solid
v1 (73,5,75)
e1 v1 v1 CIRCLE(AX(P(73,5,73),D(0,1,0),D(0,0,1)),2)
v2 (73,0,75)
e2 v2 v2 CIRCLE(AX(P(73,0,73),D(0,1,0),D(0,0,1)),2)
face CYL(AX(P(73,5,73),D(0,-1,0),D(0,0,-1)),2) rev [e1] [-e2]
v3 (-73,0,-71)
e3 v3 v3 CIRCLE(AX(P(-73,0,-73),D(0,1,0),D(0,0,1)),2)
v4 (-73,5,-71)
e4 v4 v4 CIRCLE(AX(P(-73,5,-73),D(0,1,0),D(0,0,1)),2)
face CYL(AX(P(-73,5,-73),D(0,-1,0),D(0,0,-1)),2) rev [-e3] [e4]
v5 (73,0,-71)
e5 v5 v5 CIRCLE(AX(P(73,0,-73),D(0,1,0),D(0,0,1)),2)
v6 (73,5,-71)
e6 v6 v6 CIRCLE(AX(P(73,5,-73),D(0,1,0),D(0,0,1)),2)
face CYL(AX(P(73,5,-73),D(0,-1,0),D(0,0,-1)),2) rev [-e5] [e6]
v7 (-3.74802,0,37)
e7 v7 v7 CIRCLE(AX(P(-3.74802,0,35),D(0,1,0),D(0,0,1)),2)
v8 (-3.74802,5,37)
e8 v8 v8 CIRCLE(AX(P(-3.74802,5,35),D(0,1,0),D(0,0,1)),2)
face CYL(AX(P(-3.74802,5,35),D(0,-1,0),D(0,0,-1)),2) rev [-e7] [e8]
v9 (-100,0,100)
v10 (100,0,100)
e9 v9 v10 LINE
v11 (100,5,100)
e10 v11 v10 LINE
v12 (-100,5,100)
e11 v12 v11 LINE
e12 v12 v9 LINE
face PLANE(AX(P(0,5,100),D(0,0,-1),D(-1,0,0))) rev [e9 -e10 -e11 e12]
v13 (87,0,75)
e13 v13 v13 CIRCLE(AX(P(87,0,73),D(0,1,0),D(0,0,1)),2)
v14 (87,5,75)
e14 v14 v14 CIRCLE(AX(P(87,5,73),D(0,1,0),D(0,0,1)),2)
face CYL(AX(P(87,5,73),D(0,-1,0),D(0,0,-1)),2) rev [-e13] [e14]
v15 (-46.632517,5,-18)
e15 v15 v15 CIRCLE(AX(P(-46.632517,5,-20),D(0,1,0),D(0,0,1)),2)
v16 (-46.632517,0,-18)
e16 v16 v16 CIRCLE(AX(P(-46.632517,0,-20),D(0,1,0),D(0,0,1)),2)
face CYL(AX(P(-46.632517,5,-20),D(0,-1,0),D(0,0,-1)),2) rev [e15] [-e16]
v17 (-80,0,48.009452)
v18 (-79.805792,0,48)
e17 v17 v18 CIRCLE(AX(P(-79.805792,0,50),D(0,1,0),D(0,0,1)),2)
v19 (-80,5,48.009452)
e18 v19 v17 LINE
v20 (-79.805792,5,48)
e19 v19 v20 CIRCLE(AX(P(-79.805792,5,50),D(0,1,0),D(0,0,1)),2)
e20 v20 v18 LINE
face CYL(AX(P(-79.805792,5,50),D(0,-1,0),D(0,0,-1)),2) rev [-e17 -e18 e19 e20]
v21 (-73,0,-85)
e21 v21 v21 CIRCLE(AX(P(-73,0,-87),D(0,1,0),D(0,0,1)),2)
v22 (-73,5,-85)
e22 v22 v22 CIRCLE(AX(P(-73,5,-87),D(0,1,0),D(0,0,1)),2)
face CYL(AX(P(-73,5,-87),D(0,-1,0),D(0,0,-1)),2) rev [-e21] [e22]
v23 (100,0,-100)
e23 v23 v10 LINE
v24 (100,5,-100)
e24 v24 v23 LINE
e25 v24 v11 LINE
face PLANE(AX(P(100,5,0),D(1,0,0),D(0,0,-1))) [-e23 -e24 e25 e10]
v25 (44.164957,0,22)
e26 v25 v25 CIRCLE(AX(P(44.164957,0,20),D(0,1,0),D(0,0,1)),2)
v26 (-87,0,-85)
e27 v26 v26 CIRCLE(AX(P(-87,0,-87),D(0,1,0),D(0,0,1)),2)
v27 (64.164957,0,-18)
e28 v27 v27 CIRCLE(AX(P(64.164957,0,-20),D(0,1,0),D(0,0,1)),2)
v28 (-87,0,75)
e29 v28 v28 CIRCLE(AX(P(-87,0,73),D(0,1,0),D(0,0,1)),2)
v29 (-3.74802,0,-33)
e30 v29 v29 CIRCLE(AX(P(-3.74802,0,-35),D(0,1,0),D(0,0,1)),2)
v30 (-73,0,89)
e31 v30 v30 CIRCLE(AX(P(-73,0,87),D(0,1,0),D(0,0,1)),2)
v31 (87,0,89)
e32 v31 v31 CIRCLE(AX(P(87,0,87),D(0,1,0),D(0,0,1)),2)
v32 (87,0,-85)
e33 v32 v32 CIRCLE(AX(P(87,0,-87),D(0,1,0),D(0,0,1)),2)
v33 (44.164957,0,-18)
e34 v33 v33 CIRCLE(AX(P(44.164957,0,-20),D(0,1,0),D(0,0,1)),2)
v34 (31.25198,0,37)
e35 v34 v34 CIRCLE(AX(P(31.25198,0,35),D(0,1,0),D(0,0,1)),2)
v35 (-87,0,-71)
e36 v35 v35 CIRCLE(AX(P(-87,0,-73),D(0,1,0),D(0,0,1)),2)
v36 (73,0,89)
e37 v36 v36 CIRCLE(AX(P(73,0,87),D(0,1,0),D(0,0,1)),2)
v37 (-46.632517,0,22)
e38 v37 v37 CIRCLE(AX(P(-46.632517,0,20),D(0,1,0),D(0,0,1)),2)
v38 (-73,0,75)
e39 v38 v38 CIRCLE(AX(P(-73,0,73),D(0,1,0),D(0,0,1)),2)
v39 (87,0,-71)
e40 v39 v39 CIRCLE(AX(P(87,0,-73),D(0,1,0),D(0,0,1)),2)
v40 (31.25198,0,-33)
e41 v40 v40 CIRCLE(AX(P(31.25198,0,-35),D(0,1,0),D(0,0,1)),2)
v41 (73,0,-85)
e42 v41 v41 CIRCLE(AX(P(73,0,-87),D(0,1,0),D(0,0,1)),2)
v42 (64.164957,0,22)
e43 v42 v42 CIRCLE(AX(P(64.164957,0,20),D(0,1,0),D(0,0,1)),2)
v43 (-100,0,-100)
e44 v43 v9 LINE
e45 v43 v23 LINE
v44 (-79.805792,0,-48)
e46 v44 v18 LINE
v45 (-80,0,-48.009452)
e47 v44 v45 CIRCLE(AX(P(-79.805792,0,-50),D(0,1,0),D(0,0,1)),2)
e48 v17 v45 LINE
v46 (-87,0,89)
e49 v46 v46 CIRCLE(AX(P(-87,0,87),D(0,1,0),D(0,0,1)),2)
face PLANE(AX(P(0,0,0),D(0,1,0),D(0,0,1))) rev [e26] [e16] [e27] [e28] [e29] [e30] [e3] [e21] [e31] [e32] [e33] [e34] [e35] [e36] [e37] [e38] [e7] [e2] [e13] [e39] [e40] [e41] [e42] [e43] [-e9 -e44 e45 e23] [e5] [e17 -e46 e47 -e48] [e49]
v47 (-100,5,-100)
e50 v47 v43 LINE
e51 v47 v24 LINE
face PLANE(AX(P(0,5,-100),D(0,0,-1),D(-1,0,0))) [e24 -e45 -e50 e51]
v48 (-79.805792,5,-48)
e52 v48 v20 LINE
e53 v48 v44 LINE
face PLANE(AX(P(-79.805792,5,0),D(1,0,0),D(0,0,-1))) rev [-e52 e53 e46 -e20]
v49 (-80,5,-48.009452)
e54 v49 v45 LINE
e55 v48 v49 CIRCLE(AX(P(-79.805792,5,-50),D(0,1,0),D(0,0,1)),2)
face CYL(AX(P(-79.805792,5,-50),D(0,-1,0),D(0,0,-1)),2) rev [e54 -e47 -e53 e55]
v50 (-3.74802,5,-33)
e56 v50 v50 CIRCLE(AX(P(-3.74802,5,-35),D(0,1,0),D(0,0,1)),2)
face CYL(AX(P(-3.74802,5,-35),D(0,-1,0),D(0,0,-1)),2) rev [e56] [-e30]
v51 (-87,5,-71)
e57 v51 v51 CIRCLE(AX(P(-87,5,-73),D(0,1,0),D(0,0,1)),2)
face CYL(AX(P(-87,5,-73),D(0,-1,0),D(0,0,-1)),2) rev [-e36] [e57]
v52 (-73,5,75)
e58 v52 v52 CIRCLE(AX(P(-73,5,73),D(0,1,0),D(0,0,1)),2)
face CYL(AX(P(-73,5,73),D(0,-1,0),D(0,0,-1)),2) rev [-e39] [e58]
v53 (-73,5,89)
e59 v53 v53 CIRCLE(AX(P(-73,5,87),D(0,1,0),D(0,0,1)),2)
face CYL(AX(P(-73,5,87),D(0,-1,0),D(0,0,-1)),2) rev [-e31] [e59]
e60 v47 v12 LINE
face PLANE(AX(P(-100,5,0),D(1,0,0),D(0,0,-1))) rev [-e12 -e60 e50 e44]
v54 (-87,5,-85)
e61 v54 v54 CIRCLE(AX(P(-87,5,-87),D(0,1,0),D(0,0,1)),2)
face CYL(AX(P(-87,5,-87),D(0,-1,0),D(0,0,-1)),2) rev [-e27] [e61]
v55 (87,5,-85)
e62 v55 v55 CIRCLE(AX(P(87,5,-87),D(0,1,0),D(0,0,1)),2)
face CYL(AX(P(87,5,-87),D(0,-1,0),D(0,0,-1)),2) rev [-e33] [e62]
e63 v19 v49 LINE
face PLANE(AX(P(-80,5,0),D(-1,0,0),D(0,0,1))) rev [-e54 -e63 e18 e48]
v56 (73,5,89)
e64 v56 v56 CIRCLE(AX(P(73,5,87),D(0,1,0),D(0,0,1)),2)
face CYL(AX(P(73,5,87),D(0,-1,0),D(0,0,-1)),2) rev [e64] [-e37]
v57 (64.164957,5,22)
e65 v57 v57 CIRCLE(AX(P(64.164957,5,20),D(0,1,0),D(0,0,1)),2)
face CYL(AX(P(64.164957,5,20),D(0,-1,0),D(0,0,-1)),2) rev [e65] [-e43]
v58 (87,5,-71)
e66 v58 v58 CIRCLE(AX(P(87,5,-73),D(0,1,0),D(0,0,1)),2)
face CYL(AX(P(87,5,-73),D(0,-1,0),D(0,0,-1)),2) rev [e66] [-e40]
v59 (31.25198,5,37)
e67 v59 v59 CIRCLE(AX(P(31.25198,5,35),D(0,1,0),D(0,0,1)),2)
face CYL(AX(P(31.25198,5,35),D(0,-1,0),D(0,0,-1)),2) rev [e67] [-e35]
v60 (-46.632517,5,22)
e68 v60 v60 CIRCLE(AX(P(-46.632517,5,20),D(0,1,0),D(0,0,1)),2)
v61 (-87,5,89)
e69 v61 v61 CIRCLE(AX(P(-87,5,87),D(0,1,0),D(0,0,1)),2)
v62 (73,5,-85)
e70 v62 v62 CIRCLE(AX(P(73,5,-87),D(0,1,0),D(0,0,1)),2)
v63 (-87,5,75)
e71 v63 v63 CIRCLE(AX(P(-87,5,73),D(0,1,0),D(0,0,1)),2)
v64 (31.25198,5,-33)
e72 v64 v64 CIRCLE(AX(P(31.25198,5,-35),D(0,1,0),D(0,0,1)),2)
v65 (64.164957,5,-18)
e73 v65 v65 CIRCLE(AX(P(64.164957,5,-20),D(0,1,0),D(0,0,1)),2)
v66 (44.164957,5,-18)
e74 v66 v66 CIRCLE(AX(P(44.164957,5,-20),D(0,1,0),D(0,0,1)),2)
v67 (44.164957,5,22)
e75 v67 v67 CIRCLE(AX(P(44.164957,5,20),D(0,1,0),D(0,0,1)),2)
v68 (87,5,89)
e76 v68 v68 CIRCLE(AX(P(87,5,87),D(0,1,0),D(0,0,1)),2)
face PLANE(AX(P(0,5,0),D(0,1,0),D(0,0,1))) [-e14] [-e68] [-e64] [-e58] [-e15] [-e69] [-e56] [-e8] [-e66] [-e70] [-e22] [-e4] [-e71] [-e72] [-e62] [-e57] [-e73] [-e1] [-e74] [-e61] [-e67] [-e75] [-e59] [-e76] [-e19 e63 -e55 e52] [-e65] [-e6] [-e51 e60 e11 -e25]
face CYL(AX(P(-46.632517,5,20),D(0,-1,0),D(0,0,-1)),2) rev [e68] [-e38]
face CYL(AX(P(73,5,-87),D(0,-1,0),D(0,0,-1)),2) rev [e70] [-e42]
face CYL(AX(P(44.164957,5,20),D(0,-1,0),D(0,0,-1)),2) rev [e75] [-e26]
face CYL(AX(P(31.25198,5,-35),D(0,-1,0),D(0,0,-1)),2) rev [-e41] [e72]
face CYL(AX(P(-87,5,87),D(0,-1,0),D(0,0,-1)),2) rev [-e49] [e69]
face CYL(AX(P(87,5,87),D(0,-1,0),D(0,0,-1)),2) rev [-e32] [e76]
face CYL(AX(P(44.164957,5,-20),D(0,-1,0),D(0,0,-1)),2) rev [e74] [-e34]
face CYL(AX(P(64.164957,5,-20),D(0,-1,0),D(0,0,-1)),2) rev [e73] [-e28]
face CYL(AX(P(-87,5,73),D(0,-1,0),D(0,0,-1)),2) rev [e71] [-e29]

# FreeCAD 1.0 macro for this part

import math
import FreeCAD as App
import Part
import Sketcher
Q = App.Units.Quantity

doc = App.newDocument("Part")
params = doc.addObject("Spreadsheet::Sheet", "Params")
for row, (alias, value) in enumerate([
    ("sketch1_diameter", "4 mm"),
    ("sketch1_width", "200 mm"),
    ("sketch1_height", "96 mm"),
    ("pad1_length", "5 mm"),
], start=1):
    params.set(f"A{row}", alias)
    params.set(f"B{row}", "=" + value)
    params.setAlias(f"B{row}", alias)

body = doc.addObject("PartDesign::Body", "Body")

sketch1 = doc.addObject("Sketcher::SketchObject", "Sketch")
body.addObject(sketch1)
sketch1.AttachmentSupport = (doc.XZ_Plane, [""])
sketch1.MapMode = "FlatFace"
sketch1.addGeometry([
    Part.LineSegment(App.Vector(-100, -100, 0), App.Vector(-100, 100, 0)),
    Part.LineSegment(App.Vector(-100, 100, 0), App.Vector(100, 100, 0)),
    Part.LineSegment(App.Vector(100, 100, 0), App.Vector(100, -100, 0)),
    Part.LineSegment(App.Vector(100, -100, 0), App.Vector(-100, -100, 0)),
    Part.Circle(App.Vector(-87, 87, 0), App.Vector(0, 0, 1), 2),
    Part.Circle(App.Vector(-73, 87, 0), App.Vector(0, 0, 1), 2),
    Part.Circle(App.Vector(-87, 73, 0), App.Vector(0, 0, 1), 2),
    Part.Circle(App.Vector(-73, 73, 0), App.Vector(0, 0, 1), 2),
    Part.Circle(App.Vector(-46.63, 20, 0), App.Vector(0, 0, 1), 2),
    Part.Circle(App.Vector(-3.75, 35, 0), App.Vector(0, 0, 1), 2),
    Part.Circle(App.Vector(73, 87, 0), App.Vector(0, 0, 1), 2),
    Part.Circle(App.Vector(87, 87, 0), App.Vector(0, 0, 1), 2),
    Part.Circle(App.Vector(73, 73, 0), App.Vector(0, 0, 1), 2),
    Part.Circle(App.Vector(87, 73, 0), App.Vector(0, 0, 1), 2),
    Part.Circle(App.Vector(31.25, 35, 0), App.Vector(0, 0, 1), 2),
    Part.Circle(App.Vector(44.16, 20, 0), App.Vector(0, 0, 1), 2),
    Part.Circle(App.Vector(64.16, 20, 0), App.Vector(0, 0, 1), 2),
    Part.ArcOfCircle(Part.Circle(App.Vector(-79.81, -50, 0), App.Vector(0, 0, 1), 2), math.radians(96), math.radians(450)),
    Part.LineSegment(App.Vector(-79.81, -48, 0), App.Vector(-79.81, 48, 0)),
    Part.ArcOfCircle(Part.Circle(App.Vector(-79.81, 50, 0), App.Vector(0, 0, 1), 2), math.radians(-90), math.radians(264)),
    Part.LineSegment(App.Vector(-80, 48.01, 0), App.Vector(-80, -48.01, 0)),
    Part.Circle(App.Vector(-46.63, -20, 0), App.Vector(0, 0, 1), 2),
    Part.Circle(App.Vector(-3.75, -35, 0), App.Vector(0, 0, 1), 2),
    Part.Circle(App.Vector(-87, -73, 0), App.Vector(0, 0, 1), 2),
    Part.Circle(App.Vector(-73, -73, 0), App.Vector(0, 0, 1), 2),
    Part.Circle(App.Vector(-87, -87, 0), App.Vector(0, 0, 1), 2),
    Part.Circle(App.Vector(-73, -87, 0), App.Vector(0, 0, 1), 2),
    Part.Circle(App.Vector(44.16, -20, 0), App.Vector(0, 0, 1), 2),
    Part.Circle(App.Vector(31.25, -35, 0), App.Vector(0, 0, 1), 2),
    Part.Circle(App.Vector(64.16, -20, 0), App.Vector(0, 0, 1), 2),
    Part.Circle(App.Vector(73, -73, 0), App.Vector(0, 0, 1), 2),
    Part.Circle(App.Vector(87, -73, 0), App.Vector(0, 0, 1), 2),
    Part.Circle(App.Vector(73, -87, 0), App.Vector(0, 0, 1), 2),
    Part.Circle(App.Vector(87, -87, 0), App.Vector(0, 0, 1), 2),
], False)
sketch1.addConstraint([
    Sketcher.Constraint("Coincident", 0, 2, 1, 1),
    Sketcher.Constraint("Coincident", 1, 2, 2, 1),
    Sketcher.Constraint("Coincident", 2, 2, 3, 1),
    Sketcher.Constraint("Coincident", 3, 2, 0, 1),
    Sketcher.Constraint("Coincident", 17, 2, 18, 1),
    Sketcher.Constraint("Coincident", 18, 2, 19, 1),
    Sketcher.Constraint("Coincident", 19, 2, 20, 1),
    Sketcher.Constraint("Coincident", 20, 2, 17, 1),
    Sketcher.Constraint("Vertical", 0),
    Sketcher.Constraint("Horizontal", 1),
    Sketcher.Constraint("Vertical", 2),
    Sketcher.Constraint("Horizontal", 3),
    Sketcher.Constraint("Vertical", 18),
    Sketcher.Constraint("Vertical", 20),
    Sketcher.Constraint("Equal", 4, 5),
    Sketcher.Constraint("Equal", 5, 6),
    Sketcher.Constraint("Equal", 6, 7),
    Sketcher.Constraint("Equal", 7, 8),
    Sketcher.Constraint("Equal", 8, 9),
    Sketcher.Constraint("Equal", 9, 10),
    Sketcher.Constraint("Equal", 10, 11),
    Sketcher.Constraint("Equal", 11, 12),
    Sketcher.Constraint("Equal", 12, 13),
    Sketcher.Constraint("Equal", 13, 14),
    Sketcher.Constraint("Equal", 14, 15),
    Sketcher.Constraint("Equal", 15, 16),
    Sketcher.Constraint("Equal", 16, 17),
    Sketcher.Constraint("Equal", 17, 19),
    Sketcher.Constraint("Equal", 19, 21),
    Sketcher.Constraint("Equal", 21, 22),
    Sketcher.Constraint("Equal", 22, 23),
    Sketcher.Constraint("Equal", 23, 24),
    Sketcher.Constraint("Equal", 24, 25),
    Sketcher.Constraint("Equal", 25, 26),
    Sketcher.Constraint("Equal", 26, 27),
    Sketcher.Constraint("Equal", 27, 28),
    Sketcher.Constraint("Equal", 28, 29),
    Sketcher.Constraint("Equal", 29, 30),
    Sketcher.Constraint("Equal", 30, 31),
    Sketcher.Constraint("Equal", 31, 32),
    Sketcher.Constraint("Equal", 32, 33),
    Sketcher.Constraint("Symmetric", 13, 3, 23, 3, -1, 1),
    Sketcher.Constraint("Symmetric", 12, 3, 24, 3, -1, 1),
    Sketcher.Constraint("Symmetric", 11, 3, 25, 3, -1, 1),
    Sketcher.Constraint("Symmetric", 10, 3, 26, 3, -1, 1),
    Sketcher.Constraint("Symmetric", 7, 3, 30, 3, -1, 1),
    Sketcher.Constraint("Symmetric", 6, 3, 31, 3, -1, 1),
    Sketcher.Constraint("Symmetric", 5, 3, 32, 3, -1, 1),
    Sketcher.Constraint("Symmetric", 4, 3, 33, 3, -1, 1),
    Sketcher.Constraint("Symmetric", 0, 2, 2, 2, -1, 1),
    Sketcher.Constraint("Symmetric", 5, 3, 10, 3, -2),
    Sketcher.Constraint("Symmetric", 4, 3, 11, 3, -2),
    Sketcher.Constraint("Symmetric", 7, 3, 12, 3, -2),
    Sketcher.Constraint("Symmetric", 6, 3, 13, 3, -2),
    Sketcher.Constraint("Symmetric", 17, 3, 19, 3, -1),
    Sketcher.Constraint("Symmetric", 8, 3, 21, 3, -1),
    Sketcher.Constraint("Symmetric", 9, 3, 22, 3, -1),
    Sketcher.Constraint("Symmetric", 15, 3, 27, 3, -1),
    Sketcher.Constraint("Symmetric", 14, 3, 28, 3, -1),
    Sketcher.Constraint("Symmetric", 16, 3, 29, 3, -1),
    Sketcher.Constraint("Horizontal", 4, 3, 5, 3),
    Sketcher.Constraint("Horizontal", 6, 3, 7, 3),
    Sketcher.Constraint("Horizontal", 9, 3, 14, 3),
    Sketcher.Constraint("Horizontal", 8, 3, 15, 3),
    Sketcher.Constraint("Horizontal", 15, 3, 16, 3),
    Sketcher.Constraint("Vertical", 4, 3, 6, 3),
    Sketcher.Constraint("Vertical", 5, 3, 7, 3),
    Sketcher.Constraint("Vertical", 19, 3, 17, 2),
    Sketcher.Constraint("Equal", 3, 0),
    Sketcher.Constraint("Diameter", 4, Q("4 mm")),
    Sketcher.Constraint("DistanceX", 1, 1, 1, 2, Q("200 mm")),
    Sketcher.Constraint("DistanceY", 18, 1, 18, 2, Q("96 mm")),
    Sketcher.Constraint("DistanceX", 4, 3, -1, 1, Q("87 mm")),
    Sketcher.Constraint("DistanceY", -1, 1, 4, 3, Q("87 mm")),
    Sketcher.Constraint("DistanceX", 5, 3, -1, 1, Q("73 mm")),
    Sketcher.Constraint("DistanceY", -1, 1, 6, 3, Q("73 mm")),
    Sketcher.Constraint("DistanceY", -1, 1, 8, 3, Q("20 mm")),
    Sketcher.Constraint("DistanceY", -1, 1, 9, 3, Q("35 mm")),
    Sketcher.Constraint("DistanceX", 19, 2, -1, 1, Q("80 mm")),
    Sketcher.Constraint("DistanceX", 9, 3, 14, 3, Q("35 mm")),
    Sketcher.Constraint("DistanceX", 15, 3, 16, 3, Q("20 mm")),
    Sketcher.Constraint("DistanceY", 20, 2, 20, 1, Q("96.018903 mm")),
    Sketcher.Constraint("DistanceX", 9, 3, -1, 1, Q("3.74802 mm")),
    Sketcher.Constraint("DistanceX", 8, 3, -1, 1, Q("46.632517 mm")),
    Sketcher.Constraint("DistanceX", -1, 1, 15, 3, Q("44.164957 mm")),
])
sketch1.setExpression("Constraints[69]", "Params.sketch1_diameter")
sketch1.setExpression("Constraints[70]", "Params.sketch1_width")
sketch1.setExpression("Constraints[71]", "Params.sketch1_height")
pad1 = doc.addObject("PartDesign::Pad", "Pad")
body.addObject(pad1)
pad1.Profile = sketch1
pad1.setExpression("Length", "Params.pad1_length")
pad1.Reversed = True

doc.recompute()
